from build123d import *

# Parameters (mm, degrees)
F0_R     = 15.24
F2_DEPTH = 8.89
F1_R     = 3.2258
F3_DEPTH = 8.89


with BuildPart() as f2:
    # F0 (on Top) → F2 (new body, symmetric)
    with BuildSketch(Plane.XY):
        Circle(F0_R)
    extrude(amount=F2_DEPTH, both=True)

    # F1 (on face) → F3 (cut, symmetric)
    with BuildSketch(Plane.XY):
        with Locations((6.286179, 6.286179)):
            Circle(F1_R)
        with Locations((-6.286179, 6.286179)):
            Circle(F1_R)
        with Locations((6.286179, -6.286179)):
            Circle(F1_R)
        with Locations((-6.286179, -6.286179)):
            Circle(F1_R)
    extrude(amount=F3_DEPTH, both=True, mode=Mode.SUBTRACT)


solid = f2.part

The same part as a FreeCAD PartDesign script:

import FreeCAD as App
import Part
import Sketcher
from FreeCAD import Vector
Q = App.Units.Quantity

doc = App.newDocument("Part")
body = doc.addObject("PartDesign::Body", "Body")

sketch1 = doc.addObject("Sketcher::SketchObject", "Sketch")
body.addObject(sketch1)
sketch1.AttachmentSupport = (doc.XY_Plane, [""])
sketch1.MapMode = "FlatFace"
sketch1.addGeometry(Part.Circle(Vector(0, 0, 0), Vector(0, 0, 1), 15.24), False)
sketch1.addConstraint(Sketcher.Constraint("Coincident", 0, 3, -1, 1))
sketch1.addConstraint(Sketcher.Constraint("Diameter", 0, Q("1.2 in")))
pad1 = doc.addObject("PartDesign::Pad", "Pad")
body.addObject(pad1)
pad1.Profile = sketch1
pad1.Length = Q("0.7 in")
pad1.Midplane = True

sketch2 = doc.addObject("Sketcher::SketchObject", "Sketch001")
body.addObject(sketch2)
sketch2.AttachmentSupport = (doc.XY_Plane, [""])
sketch2.MapMode = "FlatFace"
sketch2.addGeometry(Part.Circle(Vector(6.286179, 6.286179, 0), Vector(0, 0, 1), 3.2258), False)
sketch2.addGeometry(Part.Circle(Vector(-6.286179, 6.286179, 0), Vector(0, 0, 1), 3.2258), False)
sketch2.addGeometry(Part.Circle(Vector(6.286179, -6.286179, 0), Vector(0, 0, 1), 3.2258), False)
sketch2.addGeometry(Part.Circle(Vector(-6.286179, -6.286179, 0), Vector(0, 0, 1), 3.2258), False)
sketch2.addConstraint(Sketcher.Constraint("Equal", 0, 1))
sketch2.addConstraint(Sketcher.Constraint("Equal", 1, 2))
sketch2.addConstraint(Sketcher.Constraint("Equal", 2, 3))
sketch2.addConstraint(Sketcher.Constraint("Symmetric", 1, 3, 2, 3, -1, 1))
sketch2.addConstraint(Sketcher.Constraint("Symmetric", 0, 3, 3, 3, -1, 1))
sketch2.addConstraint(Sketcher.Constraint("Symmetric", 0, 3, 1, 3, -2))
sketch2.addConstraint(Sketcher.Constraint("Diameter", 0, Q("0.254 in")))
sketch2.addConstraint(Sketcher.Constraint("DistanceX", -1, 1, 0, 3, Q("6.286179 mm")))
sketch2.addConstraint(Sketcher.Constraint("DistanceY", -1, 1, 0, 3, Q("6.286179 mm")))
pocket1 = doc.addObject("PartDesign::Pocket", "Pocket")
body.addObject(pocket1)
pocket1.Profile = sketch2
pocket1.Length = Q("0.7 in")
pocket1.Midplane = True

doc.recompute()
